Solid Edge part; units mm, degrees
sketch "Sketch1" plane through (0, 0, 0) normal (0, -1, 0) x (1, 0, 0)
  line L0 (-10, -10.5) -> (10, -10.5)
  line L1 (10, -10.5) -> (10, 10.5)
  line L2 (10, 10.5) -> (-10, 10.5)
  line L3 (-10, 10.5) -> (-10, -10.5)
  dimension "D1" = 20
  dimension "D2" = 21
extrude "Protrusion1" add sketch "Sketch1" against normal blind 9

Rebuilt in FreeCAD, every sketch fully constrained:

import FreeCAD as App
import Part
import Sketcher

V = App.Vector
Q = App.Units.Quantity

doc = App.newDocument("Part")
params = doc.addObject("Spreadsheet::Sheet", "Params")
for row, (alias, value) in enumerate([
    ("sketch1_height", "21 mm"),
    ("pad1_length", "9 mm"),
], start=1):
    params.set(f"A{row}", alias)
    params.set(f"B{row}", "=" + value)
    params.setAlias(f"B{row}", alias)

body = doc.addObject("PartDesign::Body", "Body")

# Sketch on XZ plane
sketch1 = body.newObject("Sketcher::SketchObject", "Sketch")
sketch1.AttachmentSupport = (doc.getObject("XZ_Plane"), [""])
sketch1.MapMode = "FlatFace"
sketch1.addGeometry(Part.LineSegment(V(-10, 10.5, 0), V(-10, -10.5, 0)), False)
sketch1.addGeometry(Part.LineSegment(V(-10, -10.5, 0), V(10, -10.5, 0)), False)
sketch1.addGeometry(Part.LineSegment(V(10, -10.5, 0), V(10, 10.5, 0)), False)
sketch1.addGeometry(Part.LineSegment(V(10, 10.5, 0), V(-10, 10.5, 0)), False)
sketch1.addConstraint(Sketcher.Constraint("Coincident", 0, 2, 1, 1))
sketch1.addConstraint(Sketcher.Constraint("Coincident", 1, 2, 2, 1))
sketch1.addConstraint(Sketcher.Constraint("Coincident", 2, 2, 3, 1))
sketch1.addConstraint(Sketcher.Constraint("Coincident", 3, 2, 0, 1))
sketch1.addConstraint(Sketcher.Constraint("Vertical", 0))
sketch1.addConstraint(Sketcher.Constraint("Horizontal", 1))
sketch1.addConstraint(Sketcher.Constraint("Vertical", 2))
sketch1.addConstraint(Sketcher.Constraint("Horizontal", 3))
sketch1.addConstraint(Sketcher.Constraint("Symmetric", 0, 2, 2, 2, -1, 1))
sketch1.addConstraint(Sketcher.Constraint("DistanceX", 0, 2, -1, 1, Q("10 mm")))
sketch1.addConstraint(Sketcher.Constraint("DistanceY", 0, 2, 0, 1, Q("21 mm")))
sketch1.setExpression("Constraints[10]", "Params.sketch1_height")
pad1 = body.newObject("PartDesign::Pad", "Pad")
pad1.Profile = sketch1
pad1.setExpression("Length", "Params.pad1_length")
pad1.Reversed = True

doc.recompute()
